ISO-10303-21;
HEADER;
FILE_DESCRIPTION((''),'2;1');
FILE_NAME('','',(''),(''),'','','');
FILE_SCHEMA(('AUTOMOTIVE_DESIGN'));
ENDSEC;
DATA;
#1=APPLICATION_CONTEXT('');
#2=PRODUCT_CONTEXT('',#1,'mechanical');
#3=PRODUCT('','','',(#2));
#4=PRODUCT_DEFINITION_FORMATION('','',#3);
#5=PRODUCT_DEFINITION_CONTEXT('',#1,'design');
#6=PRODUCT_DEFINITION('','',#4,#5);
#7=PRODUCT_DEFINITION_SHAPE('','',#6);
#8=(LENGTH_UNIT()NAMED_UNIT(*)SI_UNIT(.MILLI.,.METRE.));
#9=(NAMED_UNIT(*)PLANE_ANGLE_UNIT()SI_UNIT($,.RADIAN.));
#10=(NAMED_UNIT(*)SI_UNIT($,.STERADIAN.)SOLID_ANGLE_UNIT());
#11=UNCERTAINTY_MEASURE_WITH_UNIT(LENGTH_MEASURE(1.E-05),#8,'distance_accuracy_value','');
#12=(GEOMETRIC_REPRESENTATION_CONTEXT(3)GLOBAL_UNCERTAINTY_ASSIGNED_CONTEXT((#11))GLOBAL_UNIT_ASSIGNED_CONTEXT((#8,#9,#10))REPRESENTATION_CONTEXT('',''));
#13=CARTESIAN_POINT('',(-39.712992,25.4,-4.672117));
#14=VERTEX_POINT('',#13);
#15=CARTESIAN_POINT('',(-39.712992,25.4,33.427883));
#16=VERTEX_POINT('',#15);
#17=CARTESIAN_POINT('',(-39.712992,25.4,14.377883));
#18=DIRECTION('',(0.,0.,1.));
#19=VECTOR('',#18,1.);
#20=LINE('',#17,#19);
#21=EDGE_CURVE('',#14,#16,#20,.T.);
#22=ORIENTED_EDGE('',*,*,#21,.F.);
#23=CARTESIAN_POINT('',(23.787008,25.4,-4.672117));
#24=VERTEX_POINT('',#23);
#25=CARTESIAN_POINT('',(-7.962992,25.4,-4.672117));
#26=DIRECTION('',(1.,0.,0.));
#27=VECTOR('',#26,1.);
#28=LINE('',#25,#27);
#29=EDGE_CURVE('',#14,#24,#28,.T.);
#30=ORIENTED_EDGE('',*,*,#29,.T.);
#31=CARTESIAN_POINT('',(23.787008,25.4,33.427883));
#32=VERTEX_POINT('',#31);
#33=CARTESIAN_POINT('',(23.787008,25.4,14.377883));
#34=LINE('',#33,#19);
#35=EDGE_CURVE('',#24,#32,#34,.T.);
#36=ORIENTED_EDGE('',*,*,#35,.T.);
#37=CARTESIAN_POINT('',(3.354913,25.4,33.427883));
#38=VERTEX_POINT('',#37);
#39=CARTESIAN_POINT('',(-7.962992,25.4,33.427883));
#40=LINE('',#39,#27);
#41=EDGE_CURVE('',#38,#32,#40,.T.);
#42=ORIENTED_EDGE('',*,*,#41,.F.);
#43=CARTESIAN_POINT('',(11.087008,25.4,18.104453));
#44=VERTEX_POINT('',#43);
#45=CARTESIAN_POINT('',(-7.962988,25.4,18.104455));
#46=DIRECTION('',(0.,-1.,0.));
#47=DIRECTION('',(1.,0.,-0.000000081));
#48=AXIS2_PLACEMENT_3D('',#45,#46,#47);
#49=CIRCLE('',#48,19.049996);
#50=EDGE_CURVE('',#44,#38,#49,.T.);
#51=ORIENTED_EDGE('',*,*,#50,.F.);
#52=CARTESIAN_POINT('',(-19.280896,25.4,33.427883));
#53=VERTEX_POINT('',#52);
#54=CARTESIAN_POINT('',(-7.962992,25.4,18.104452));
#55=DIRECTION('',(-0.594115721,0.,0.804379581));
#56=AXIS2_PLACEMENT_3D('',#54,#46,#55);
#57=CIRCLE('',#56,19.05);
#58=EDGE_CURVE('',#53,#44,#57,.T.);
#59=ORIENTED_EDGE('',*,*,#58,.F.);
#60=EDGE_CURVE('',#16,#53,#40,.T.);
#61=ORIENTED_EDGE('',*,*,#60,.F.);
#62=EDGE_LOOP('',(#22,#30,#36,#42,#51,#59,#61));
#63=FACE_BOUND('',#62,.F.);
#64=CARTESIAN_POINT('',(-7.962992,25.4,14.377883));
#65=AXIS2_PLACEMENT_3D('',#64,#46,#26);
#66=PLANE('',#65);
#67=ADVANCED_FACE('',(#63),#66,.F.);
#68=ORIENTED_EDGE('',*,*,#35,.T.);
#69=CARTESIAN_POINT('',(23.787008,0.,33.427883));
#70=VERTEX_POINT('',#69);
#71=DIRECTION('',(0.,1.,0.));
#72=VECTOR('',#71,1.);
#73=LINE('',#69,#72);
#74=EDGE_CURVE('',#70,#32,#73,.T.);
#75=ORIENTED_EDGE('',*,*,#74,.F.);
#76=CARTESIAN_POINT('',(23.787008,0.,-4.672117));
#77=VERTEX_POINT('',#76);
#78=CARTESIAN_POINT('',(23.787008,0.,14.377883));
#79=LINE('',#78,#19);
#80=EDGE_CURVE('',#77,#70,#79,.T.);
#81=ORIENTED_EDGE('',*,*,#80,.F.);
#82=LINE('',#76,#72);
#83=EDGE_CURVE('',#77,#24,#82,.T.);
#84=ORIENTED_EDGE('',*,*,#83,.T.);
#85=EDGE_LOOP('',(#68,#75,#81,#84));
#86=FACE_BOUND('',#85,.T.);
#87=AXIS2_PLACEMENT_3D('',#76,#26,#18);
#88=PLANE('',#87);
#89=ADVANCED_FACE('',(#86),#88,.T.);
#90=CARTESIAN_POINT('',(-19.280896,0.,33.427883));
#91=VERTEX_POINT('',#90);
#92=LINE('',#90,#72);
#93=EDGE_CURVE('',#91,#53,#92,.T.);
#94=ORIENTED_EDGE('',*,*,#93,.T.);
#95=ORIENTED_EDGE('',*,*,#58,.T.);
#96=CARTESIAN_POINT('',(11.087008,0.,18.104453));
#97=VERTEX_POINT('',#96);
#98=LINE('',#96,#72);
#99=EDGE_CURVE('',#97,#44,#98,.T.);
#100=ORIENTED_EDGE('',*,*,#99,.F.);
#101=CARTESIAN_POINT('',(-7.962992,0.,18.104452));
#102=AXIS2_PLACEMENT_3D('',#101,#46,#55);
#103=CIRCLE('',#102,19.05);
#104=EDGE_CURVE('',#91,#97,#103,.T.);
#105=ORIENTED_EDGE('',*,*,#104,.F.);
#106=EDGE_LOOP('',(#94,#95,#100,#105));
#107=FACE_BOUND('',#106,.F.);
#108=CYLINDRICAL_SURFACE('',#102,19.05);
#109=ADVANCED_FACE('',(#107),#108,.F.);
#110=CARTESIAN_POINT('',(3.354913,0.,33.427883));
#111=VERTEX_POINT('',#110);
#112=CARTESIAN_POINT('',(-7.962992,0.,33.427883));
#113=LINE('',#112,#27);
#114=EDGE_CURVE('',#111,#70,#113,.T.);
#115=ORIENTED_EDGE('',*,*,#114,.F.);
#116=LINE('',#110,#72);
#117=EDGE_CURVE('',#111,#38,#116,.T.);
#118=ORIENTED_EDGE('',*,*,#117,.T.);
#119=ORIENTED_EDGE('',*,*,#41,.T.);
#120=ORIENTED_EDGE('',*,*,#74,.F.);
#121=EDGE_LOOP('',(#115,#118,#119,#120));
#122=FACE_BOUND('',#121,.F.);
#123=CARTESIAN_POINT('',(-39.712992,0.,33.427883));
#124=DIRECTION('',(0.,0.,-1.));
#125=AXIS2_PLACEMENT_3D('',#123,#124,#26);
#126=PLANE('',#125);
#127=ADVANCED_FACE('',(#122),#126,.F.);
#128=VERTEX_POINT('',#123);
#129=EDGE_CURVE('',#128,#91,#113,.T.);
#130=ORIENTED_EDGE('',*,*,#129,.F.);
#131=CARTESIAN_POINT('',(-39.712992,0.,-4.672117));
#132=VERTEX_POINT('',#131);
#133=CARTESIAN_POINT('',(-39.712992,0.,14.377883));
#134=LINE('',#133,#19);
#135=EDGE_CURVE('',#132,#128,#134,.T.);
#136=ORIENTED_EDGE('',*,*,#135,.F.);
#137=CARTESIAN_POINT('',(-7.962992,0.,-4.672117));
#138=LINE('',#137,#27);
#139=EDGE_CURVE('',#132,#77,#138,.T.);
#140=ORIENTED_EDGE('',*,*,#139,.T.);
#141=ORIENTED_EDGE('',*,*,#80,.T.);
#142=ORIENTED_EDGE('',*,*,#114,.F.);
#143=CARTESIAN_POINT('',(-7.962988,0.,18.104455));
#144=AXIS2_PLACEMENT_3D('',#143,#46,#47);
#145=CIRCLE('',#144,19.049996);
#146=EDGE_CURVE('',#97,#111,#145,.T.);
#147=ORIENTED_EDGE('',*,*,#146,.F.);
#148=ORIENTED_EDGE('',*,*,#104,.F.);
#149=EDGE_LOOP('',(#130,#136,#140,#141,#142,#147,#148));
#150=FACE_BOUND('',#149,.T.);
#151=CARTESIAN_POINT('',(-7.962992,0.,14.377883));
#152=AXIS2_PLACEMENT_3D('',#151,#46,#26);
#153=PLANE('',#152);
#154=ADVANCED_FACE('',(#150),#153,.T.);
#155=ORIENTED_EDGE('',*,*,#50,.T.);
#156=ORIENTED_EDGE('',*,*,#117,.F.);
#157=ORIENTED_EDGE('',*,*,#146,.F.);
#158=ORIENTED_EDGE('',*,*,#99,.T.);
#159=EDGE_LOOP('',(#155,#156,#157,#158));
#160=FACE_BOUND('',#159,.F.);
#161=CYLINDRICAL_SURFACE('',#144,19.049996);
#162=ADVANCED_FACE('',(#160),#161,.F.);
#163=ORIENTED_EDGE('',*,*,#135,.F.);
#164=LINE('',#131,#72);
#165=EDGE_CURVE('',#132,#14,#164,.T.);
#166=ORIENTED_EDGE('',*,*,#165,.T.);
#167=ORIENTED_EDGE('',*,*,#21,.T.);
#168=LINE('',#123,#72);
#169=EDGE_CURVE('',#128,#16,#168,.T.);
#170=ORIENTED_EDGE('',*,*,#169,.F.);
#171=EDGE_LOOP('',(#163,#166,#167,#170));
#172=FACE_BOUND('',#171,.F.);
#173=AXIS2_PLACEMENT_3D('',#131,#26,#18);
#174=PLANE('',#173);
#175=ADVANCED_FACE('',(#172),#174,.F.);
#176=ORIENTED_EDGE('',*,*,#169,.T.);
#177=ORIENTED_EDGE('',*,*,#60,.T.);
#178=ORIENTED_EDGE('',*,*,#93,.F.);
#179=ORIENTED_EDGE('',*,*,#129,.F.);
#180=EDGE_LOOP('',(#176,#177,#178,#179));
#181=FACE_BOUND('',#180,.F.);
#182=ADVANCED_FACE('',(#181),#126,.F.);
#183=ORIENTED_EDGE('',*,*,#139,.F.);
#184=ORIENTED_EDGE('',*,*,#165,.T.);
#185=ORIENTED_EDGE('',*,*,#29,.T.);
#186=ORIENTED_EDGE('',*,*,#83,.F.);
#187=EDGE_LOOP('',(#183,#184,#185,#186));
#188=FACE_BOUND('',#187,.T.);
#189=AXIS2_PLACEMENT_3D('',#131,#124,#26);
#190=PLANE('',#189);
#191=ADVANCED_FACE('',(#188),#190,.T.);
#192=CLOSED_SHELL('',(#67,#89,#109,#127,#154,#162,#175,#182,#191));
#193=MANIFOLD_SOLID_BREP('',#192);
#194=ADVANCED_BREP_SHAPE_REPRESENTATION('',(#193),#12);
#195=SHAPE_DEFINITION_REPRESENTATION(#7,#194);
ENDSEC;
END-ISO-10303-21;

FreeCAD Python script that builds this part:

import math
import FreeCAD as App
import Part
import Sketcher
Q = App.Units.Quantity


def add_polygon(sketch, points):
    """Adds a closed chain of lines whose ends are joined by coincident constraints."""
    first, n = sketch.GeometryCount, len(points)
    for a, b in zip(points, points[1:] + points[:1]):
        sketch.addGeometry(Part.LineSegment(App.Vector(*a, 0), App.Vector(*b, 0)), False)
    for i in range(n):
        sketch.addConstraint(Sketcher.Constraint("Coincident", first + i, 2, first + (i + 1) % n, 1))

doc = App.newDocument("Part")
params = doc.addObject("Spreadsheet::Sheet", "Params")
for row, (alias, value) in enumerate([
    ("sketch1_width", "2.5 in"),
    ("sketch1_height", "1.5 in"),
    ("pad1_length", "1 in"),
    ("sketch2_radius", "0.75 in"),
    ("sketch2_radius2", "0.7499998 in"),
    ("pocket1_length", "1 in"),
], start=1):
    params.set(f"A{row}", alias)
    params.set(f"B{row}", "=" + value)
    params.setAlias(f"B{row}", alias)

body = doc.addObject("PartDesign::Body", "Body")

# Sketch on XZ plane
sketch1 = doc.addObject("Sketcher::SketchObject", "Sketch")
body.addObject(sketch1)
sketch1.AttachmentSupport = (doc.XZ_Plane, [""])
sketch1.MapMode = "FlatFace"
add_polygon(sketch1, [(-40, 33), (-40, -5), (24, -5), (24, 33)])  # lines 0-3
sketch1.addConstraint([
    Sketcher.Constraint("Vertical", 0),
    Sketcher.Constraint("Horizontal", 1),
    Sketcher.Constraint("Vertical", 2),
    Sketcher.Constraint("Horizontal", 3),
    Sketcher.Constraint("DistanceX", 1, 1, 1, 2, Q("2.5 in")),
    Sketcher.Constraint("DistanceY", 0, 2, 0, 1, Q("1.5 in")),
    Sketcher.Constraint("DistanceX", -1, 1, 1, 2, 23.787008),
    Sketcher.Constraint("DistanceY", 0, 2, -1, 1, 4.672117),
])
sketch1.setExpression("Constraints[8]", "Params.sketch1_width")
sketch1.setExpression("Constraints[9]", "Params.sketch1_height")
pad1 = doc.addObject("PartDesign::Pad", "Pad")
body.addObject(pad1)
pad1.Profile = sketch1
pad1.setExpression("Length", "Params.pad1_length")
pad1.Reversed = True

# Sketch on XZ plane
sketch2 = doc.addObject("Sketcher::SketchObject", "Sketch001")
body.addObject(sketch2)
sketch2.AttachmentSupport = (doc.XZ_Plane, [""])
sketch2.MapMode = "FlatFace"
sketch2.addGeometry([
    Part.ArcOfCircle(Part.Circle(App.Vector(-8, 18, 0), App.Vector(0, 0, 1), 19), math.radians(126), math.radians(360)),
    Part.ArcOfCircle(Part.Circle(App.Vector(-8, 18, 0), App.Vector(0, 0, 1), 19), math.radians(0), math.radians(54)),
    Part.LineSegment(App.Vector(3, 33, 0), App.Vector(-19, 33, 0)),
], False)
sketch2.addConstraint([
    Sketcher.Constraint("Tangent", 0, 2, 1, 1),
    Sketcher.Constraint("Coincident", 1, 2, 2, 1),
    Sketcher.Constraint("Coincident", 2, 2, 0, 1),
    Sketcher.Constraint("Horizontal", 2),
    Sketcher.Constraint("Horizontal", 1, 3, 0, 2),
    Sketcher.Constraint("Radius", 0, Q("0.75 in")),
    Sketcher.Constraint("Radius", 1, Q("0.7499998 in")),
    Sketcher.Constraint("DistanceX", 2, 2, 2, 1, 22.635809),
    Sketcher.Constraint("DistanceX", 0, 3, -1, 1, 7.962992),
    Sketcher.Constraint("DistanceY", -1, 1, 0, 3, 18.104452),
])
sketch2.setExpression("Constraints[5]", "Params.sketch2_radius")
sketch2.setExpression("Constraints[6]", "Params.sketch2_radius2")
pocket1 = doc.addObject("PartDesign::Pocket", "Pocket")
body.addObject(pocket1)
pocket1.Profile = sketch2
pocket1.setExpression("Length", "Params.pocket1_length")

doc.recompute()
